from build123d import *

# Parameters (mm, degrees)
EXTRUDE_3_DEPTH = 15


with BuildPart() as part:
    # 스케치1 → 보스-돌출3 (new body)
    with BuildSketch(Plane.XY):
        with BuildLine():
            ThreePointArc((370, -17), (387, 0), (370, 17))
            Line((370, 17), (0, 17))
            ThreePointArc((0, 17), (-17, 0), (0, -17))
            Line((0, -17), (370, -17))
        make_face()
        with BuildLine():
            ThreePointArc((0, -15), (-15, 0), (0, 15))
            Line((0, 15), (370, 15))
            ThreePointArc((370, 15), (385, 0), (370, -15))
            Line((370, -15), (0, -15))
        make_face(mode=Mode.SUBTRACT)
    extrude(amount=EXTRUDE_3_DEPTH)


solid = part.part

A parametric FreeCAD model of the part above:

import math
import FreeCAD as App
import Part
import Sketcher
from FreeCAD import Vector

doc = App.newDocument("Part")
body = doc.addObject("PartDesign::Body", "Body")

# Sketch on XY plane
sketch1 = body.newObject("Sketcher::SketchObject", "Sketch")
sketch1.AttachmentSupport = (doc.getObject("XY_Plane"), [""])
sketch1.MapMode = "FlatFace"
sketch1.addGeometry([
    Part.ArcOfCircle(Part.Circle(Vector(370, 0, 0), Vector(0, 0, 1), 17), math.radians(-90), math.radians(90)),  # 0
    Part.LineSegment(Vector(370, 17, 0), Vector(0, 17, 0)),  # 1
    Part.ArcOfCircle(Part.Circle(Vector(0, 0, 0), Vector(0, 0, 1), 17), math.radians(90), math.radians(270)),  # 2
    Part.LineSegment(Vector(0, -17, 0), Vector(370, -17, 0)),  # 3
    Part.LineSegment(Vector(370, -15, 0), Vector(0, -15, 0)),  # 4
    Part.ArcOfCircle(Part.Circle(Vector(0, 0, 0), Vector(0, 0, 1), 15), math.radians(90), math.radians(270)),  # 5
    Part.LineSegment(Vector(0, 15, 0), Vector(370, 15, 0)),  # 6
    Part.ArcOfCircle(Part.Circle(Vector(370, 0, 0), Vector(0, 0, 1), 15), math.radians(-90), math.radians(90)),  # 7
], False)
sketch1.addConstraint([
    Sketcher.Constraint("Tangent", 0, 2, 1, 1),
    Sketcher.Constraint("Tangent", 1, 2, 2, 1),
    Sketcher.Constraint("Tangent", 2, 2, 3, 1),
    Sketcher.Constraint("Tangent", 3, 2, 0, 1),
    Sketcher.Constraint("Tangent", 4, 2, 5, 2),
    Sketcher.Constraint("Tangent", 5, 1, 6, 1),
    Sketcher.Constraint("Tangent", 6, 2, 7, 2),
    Sketcher.Constraint("Tangent", 7, 1, 4, 1),
    Sketcher.Constraint("Horizontal", 1),
    Sketcher.Constraint("Horizontal", 3),
    Sketcher.Constraint("Horizontal", 4),
    Sketcher.Constraint("Horizontal", 6),
    Sketcher.Constraint("Coincident", 2, 3, -1, 1),
    Sketcher.Constraint("Coincident", 5, 3, -1, 1),
    Sketcher.Constraint("Vertical", 7, 3, 0, 2),
    Sketcher.Constraint("Radius", 0, 17.0),
    Sketcher.Constraint("Radius", 5, 15.0),
    Sketcher.Constraint("DistanceX", 1, 2, 1, 1, 370.0),
])
pad1 = body.newObject("PartDesign::Pad", "Pad")
pad1.Profile = sketch1
pad1.Length = 15

doc.recompute()
